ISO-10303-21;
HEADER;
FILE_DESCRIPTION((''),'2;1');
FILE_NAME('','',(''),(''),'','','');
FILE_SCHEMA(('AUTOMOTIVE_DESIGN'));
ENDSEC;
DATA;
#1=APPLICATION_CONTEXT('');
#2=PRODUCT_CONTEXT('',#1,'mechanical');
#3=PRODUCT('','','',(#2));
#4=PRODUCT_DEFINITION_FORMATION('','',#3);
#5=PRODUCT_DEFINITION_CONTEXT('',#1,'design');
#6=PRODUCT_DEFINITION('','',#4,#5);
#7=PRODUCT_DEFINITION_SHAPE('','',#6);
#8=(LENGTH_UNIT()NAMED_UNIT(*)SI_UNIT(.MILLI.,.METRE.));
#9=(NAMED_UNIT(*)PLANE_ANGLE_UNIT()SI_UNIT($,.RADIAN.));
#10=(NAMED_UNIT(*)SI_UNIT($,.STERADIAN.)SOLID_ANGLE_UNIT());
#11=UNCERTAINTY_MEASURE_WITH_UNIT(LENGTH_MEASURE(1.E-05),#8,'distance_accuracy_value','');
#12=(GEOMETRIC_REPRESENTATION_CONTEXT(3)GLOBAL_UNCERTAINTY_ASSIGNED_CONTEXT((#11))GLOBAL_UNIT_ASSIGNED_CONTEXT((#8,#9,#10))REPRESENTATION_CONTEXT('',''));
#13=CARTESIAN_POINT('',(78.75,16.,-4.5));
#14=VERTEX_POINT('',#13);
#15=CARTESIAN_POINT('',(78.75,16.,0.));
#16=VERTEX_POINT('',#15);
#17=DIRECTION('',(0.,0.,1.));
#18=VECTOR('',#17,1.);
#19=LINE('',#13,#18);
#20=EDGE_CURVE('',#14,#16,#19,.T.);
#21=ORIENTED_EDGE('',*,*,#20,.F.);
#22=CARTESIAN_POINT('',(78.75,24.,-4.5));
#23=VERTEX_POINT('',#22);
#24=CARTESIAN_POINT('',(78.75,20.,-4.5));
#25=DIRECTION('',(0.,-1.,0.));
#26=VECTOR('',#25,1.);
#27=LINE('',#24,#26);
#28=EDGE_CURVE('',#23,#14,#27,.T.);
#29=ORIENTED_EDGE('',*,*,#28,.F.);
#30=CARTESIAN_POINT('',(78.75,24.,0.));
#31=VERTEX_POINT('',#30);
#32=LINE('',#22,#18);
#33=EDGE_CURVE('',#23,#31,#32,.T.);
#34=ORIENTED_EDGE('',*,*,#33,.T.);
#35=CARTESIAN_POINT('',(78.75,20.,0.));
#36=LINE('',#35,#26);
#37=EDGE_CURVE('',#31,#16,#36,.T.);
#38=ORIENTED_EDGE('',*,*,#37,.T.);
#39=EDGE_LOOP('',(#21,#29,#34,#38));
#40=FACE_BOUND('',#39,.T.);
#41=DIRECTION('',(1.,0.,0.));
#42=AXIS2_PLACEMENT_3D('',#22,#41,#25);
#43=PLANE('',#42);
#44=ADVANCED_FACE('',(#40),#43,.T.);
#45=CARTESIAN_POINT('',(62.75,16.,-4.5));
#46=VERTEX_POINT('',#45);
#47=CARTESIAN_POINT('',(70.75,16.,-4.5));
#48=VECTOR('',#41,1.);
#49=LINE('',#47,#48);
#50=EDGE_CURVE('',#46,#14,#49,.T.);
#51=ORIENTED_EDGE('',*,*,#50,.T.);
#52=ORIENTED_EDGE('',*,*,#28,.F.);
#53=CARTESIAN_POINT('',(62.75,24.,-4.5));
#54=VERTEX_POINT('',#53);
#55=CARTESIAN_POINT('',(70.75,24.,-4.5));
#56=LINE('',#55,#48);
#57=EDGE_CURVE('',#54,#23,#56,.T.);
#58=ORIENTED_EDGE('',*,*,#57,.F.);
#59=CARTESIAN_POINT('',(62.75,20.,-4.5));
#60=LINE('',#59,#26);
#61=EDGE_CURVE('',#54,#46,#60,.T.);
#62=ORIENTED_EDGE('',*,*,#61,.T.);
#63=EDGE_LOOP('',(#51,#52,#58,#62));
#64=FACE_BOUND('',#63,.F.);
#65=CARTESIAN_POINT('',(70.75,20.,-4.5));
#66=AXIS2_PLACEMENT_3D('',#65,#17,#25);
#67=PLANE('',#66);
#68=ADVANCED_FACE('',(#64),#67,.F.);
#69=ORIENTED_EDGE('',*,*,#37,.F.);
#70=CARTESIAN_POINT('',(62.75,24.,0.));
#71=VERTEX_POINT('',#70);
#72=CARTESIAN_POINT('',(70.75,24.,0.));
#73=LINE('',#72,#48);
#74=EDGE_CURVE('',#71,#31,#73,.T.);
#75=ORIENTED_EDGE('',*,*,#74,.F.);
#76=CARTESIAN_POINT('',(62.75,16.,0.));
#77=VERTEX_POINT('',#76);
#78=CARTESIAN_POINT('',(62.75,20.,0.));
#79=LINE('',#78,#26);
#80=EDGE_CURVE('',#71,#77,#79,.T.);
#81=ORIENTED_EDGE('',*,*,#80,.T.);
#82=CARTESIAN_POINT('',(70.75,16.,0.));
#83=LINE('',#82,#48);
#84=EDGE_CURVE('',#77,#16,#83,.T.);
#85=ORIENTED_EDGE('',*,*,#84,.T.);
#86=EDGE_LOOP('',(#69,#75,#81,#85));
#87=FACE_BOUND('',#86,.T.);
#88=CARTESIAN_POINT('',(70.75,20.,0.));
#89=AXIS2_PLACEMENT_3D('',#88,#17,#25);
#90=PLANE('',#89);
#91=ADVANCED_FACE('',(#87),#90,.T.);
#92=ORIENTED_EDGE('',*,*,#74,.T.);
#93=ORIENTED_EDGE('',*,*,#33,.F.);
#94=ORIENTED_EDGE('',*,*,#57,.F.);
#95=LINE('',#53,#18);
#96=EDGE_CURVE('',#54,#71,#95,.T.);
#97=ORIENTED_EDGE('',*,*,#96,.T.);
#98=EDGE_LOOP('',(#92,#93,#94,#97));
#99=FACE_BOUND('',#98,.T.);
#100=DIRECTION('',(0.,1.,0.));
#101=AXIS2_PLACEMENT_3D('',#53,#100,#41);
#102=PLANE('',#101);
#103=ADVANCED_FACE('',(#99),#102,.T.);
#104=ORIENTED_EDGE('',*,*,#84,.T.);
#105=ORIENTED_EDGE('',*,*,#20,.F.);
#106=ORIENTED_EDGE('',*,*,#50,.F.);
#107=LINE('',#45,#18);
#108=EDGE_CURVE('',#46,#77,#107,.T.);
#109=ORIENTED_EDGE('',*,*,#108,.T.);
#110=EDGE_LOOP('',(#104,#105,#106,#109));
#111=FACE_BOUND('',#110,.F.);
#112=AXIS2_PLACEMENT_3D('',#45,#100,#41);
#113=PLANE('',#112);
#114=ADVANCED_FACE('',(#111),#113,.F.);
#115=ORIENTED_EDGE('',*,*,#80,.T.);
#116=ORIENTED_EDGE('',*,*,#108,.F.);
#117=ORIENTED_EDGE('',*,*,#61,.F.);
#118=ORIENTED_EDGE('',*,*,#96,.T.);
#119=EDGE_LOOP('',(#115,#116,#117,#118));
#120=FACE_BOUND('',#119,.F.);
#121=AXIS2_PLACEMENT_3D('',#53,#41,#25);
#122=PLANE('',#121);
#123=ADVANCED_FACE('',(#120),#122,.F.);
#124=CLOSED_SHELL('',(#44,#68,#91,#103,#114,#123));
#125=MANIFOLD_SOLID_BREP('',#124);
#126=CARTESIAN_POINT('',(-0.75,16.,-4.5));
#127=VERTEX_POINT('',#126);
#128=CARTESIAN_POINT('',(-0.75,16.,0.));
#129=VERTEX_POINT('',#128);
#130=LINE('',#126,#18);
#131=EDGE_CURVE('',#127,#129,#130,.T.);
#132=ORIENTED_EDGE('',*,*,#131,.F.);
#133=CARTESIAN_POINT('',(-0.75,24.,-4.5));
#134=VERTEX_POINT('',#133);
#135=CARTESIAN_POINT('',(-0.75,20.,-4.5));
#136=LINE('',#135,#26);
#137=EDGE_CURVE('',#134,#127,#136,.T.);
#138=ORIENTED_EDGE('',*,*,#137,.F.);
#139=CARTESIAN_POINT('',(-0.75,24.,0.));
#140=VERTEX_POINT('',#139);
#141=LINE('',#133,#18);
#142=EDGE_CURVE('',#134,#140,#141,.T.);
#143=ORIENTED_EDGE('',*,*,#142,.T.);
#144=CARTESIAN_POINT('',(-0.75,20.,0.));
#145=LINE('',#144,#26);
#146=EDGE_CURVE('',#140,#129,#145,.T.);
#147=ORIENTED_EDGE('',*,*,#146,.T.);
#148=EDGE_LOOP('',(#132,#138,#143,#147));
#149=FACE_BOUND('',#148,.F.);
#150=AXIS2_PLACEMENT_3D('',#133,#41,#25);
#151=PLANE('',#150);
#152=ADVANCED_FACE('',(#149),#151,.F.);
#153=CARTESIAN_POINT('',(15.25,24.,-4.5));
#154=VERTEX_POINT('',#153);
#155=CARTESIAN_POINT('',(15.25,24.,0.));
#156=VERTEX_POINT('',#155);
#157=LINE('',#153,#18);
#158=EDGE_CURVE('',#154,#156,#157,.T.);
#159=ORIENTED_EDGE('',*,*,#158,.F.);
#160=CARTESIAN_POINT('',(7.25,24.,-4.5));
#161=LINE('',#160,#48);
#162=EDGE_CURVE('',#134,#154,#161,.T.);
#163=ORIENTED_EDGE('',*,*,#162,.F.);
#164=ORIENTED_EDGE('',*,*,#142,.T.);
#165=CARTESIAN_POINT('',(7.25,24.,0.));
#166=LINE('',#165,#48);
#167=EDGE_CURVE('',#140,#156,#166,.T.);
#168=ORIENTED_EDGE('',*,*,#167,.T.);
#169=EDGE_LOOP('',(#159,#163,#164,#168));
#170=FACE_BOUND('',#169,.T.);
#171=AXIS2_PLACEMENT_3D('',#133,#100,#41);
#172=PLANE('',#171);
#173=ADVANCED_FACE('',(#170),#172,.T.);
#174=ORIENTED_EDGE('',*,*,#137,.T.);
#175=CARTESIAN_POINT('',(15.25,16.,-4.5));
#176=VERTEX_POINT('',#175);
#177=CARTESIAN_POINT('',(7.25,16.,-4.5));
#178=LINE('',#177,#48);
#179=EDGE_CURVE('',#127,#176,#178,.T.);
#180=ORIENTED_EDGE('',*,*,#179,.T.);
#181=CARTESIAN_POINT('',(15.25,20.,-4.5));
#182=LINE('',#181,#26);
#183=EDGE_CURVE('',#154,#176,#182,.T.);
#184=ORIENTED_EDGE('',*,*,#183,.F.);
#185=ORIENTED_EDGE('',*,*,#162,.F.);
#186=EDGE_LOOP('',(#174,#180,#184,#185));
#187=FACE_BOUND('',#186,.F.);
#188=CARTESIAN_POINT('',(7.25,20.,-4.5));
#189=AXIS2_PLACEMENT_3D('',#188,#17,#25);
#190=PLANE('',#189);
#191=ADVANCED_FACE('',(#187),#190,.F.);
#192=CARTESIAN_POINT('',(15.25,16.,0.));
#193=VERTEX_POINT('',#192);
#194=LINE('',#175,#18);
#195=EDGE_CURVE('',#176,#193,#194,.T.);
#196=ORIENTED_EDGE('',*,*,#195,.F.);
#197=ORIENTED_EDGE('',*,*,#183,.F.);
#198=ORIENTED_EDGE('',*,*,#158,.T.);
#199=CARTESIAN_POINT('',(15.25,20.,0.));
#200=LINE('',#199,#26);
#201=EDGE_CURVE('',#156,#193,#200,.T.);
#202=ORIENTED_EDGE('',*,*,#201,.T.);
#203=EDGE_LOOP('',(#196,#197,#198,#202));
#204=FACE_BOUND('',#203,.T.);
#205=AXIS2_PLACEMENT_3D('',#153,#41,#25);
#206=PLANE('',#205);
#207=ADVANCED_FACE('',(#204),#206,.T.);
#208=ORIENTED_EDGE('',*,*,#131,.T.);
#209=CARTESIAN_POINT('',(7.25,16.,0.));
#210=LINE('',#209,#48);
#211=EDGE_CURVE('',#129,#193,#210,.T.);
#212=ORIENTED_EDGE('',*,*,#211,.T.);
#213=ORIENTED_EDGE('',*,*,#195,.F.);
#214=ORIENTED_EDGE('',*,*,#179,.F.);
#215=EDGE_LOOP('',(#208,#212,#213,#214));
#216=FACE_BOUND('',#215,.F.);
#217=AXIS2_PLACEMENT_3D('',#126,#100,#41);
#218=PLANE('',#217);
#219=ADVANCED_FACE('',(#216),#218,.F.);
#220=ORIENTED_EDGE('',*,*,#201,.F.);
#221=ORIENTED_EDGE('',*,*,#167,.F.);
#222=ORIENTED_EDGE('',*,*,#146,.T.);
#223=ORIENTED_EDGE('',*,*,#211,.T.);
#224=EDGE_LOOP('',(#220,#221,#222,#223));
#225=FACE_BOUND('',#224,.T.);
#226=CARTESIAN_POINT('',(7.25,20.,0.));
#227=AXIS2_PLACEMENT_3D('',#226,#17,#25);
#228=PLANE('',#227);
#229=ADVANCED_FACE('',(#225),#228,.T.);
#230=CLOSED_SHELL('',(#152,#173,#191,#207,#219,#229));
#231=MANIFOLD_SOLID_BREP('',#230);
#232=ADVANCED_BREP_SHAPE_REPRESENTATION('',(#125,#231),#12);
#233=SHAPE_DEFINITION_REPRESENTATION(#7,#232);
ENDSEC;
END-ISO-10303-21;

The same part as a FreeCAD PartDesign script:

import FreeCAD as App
import Part
import Sketcher

V = App.Vector
Q = App.Units.Quantity


def add_polygon(sketch, points):
    """Adds a closed chain of lines whose ends are joined by coincident constraints."""
    first, n = sketch.GeometryCount, len(points)
    for a, b in zip(points, points[1:] + points[:1]):
        sketch.addGeometry(Part.LineSegment(App.Vector(*a, 0), App.Vector(*b, 0)), False)
    for i in range(n):
        sketch.addConstraint(Sketcher.Constraint("Coincident", first + i, 2, first + (i + 1) % n, 1))

doc = App.newDocument("Part")
body = doc.addObject("PartDesign::Body", "Body")

sketch1 = body.newObject("Sketcher::SketchObject", "Sketch")
sketch1.AttachmentSupport = (doc.getObject("XY_Plane"), [""])
sketch1.MapMode = "FlatFace"
sketch1.AttachmentOffset = App.Placement(V(0, 0, -4.5), App.Rotation())
add_polygon(sketch1, [(15, 24), (-1, 24), (-1, 16), (15, 16)])
sketch1.addConstraint(Sketcher.Constraint("Horizontal", 0))
sketch1.addConstraint(Sketcher.Constraint("Vertical", 1))
sketch1.addConstraint(Sketcher.Constraint("Horizontal", 2))
sketch1.addConstraint(Sketcher.Constraint("Vertical", 3))
sketch1.addConstraint(Sketcher.Constraint("DistanceX", 0, 2, 0, 1, Q("16 mm")))
sketch1.addConstraint(Sketcher.Constraint("DistanceY", 1, 2, 1, 1, Q("8 mm")))
sketch1.addConstraint(Sketcher.Constraint("DistanceY", -1, 1, 0, 2, Q("24 mm")))
sketch1.addConstraint(Sketcher.Constraint("DistanceX", 0, 2, -1, 1, Q("0.75 mm")))
pad1 = body.newObject("PartDesign::Pad", "Pad")
pad1.Profile = sketch1
pad1.Length = 4.5
body2 = doc.addObject("PartDesign::Body", "Body001")
body2.AllowCompound = True

sketch2 = body2.newObject("Sketcher::SketchObject", "Sketch001")
sketch2.AttachmentSupport = (doc.getObject("XY_Plane001"), [""])
sketch2.MapMode = "FlatFace"
sketch2.AttachmentOffset = App.Placement(V(0, 0, -4.5), App.Rotation())
add_polygon(sketch2, [(79, 24), (63, 24), (63, 16), (79, 16)])
sketch2.addConstraint(Sketcher.Constraint("Horizontal", 0))
sketch2.addConstraint(Sketcher.Constraint("Vertical", 1))
sketch2.addConstraint(Sketcher.Constraint("Horizontal", 2))
sketch2.addConstraint(Sketcher.Constraint("Vertical", 3))
sketch2.addConstraint(Sketcher.Constraint("DistanceX", 0, 2, 0, 1, Q("16 mm")))
sketch2.addConstraint(Sketcher.Constraint("DistanceY", 1, 2, 1, 1, Q("8 mm")))
sketch2.addConstraint(Sketcher.Constraint("DistanceY", -1, 1, 0, 2, Q("24 mm")))
sketch2.addConstraint(Sketcher.Constraint("DistanceX", -1, 1, 0, 2, Q("62.75 mm")))
pad2 = body2.newObject("PartDesign::Pad", "Pad001")
pad2.Profile = sketch2
pad2.Length = 4.5
doc.recompute()

boolean = body2.newObject("PartDesign::Boolean", "Boolean")
boolean.Type = "Fuse"
boolean.addObjects([body])

doc.recompute()
